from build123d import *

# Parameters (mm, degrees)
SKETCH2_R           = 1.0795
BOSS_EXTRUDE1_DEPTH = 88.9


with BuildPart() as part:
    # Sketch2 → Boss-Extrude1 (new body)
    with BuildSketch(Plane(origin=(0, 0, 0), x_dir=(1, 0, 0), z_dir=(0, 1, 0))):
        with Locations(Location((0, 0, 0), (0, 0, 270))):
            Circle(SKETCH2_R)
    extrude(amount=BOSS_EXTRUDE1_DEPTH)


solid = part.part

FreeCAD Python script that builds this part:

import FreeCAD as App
import Part
import Sketcher

V = App.Vector
Q = App.Units.Quantity

doc = App.newDocument("Part")
body = doc.addObject("PartDesign::Body", "Body")

sketch1 = body.newObject("Sketcher::SketchObject", "Sketch")
sketch1.AttachmentSupport = (doc.getObject("XZ_Plane"), [""])
sketch1.MapMode = "FlatFace"
sketch1.addGeometry(Part.Circle(V(0, 0, 0), V(0, 0, 1), 1.1), False)
sketch1.addConstraint([
    Sketcher.Constraint("Coincident", 0, 3, -1, 1),
    Sketcher.Constraint("Diameter", 0, Q("0.085 in")),
])
pad1 = body.newObject("PartDesign::Pad", "Pad")
pad1.Profile = sketch1
pad1.Length = Q("3.5 in")
pad1.Reversed = True

doc.recompute()
